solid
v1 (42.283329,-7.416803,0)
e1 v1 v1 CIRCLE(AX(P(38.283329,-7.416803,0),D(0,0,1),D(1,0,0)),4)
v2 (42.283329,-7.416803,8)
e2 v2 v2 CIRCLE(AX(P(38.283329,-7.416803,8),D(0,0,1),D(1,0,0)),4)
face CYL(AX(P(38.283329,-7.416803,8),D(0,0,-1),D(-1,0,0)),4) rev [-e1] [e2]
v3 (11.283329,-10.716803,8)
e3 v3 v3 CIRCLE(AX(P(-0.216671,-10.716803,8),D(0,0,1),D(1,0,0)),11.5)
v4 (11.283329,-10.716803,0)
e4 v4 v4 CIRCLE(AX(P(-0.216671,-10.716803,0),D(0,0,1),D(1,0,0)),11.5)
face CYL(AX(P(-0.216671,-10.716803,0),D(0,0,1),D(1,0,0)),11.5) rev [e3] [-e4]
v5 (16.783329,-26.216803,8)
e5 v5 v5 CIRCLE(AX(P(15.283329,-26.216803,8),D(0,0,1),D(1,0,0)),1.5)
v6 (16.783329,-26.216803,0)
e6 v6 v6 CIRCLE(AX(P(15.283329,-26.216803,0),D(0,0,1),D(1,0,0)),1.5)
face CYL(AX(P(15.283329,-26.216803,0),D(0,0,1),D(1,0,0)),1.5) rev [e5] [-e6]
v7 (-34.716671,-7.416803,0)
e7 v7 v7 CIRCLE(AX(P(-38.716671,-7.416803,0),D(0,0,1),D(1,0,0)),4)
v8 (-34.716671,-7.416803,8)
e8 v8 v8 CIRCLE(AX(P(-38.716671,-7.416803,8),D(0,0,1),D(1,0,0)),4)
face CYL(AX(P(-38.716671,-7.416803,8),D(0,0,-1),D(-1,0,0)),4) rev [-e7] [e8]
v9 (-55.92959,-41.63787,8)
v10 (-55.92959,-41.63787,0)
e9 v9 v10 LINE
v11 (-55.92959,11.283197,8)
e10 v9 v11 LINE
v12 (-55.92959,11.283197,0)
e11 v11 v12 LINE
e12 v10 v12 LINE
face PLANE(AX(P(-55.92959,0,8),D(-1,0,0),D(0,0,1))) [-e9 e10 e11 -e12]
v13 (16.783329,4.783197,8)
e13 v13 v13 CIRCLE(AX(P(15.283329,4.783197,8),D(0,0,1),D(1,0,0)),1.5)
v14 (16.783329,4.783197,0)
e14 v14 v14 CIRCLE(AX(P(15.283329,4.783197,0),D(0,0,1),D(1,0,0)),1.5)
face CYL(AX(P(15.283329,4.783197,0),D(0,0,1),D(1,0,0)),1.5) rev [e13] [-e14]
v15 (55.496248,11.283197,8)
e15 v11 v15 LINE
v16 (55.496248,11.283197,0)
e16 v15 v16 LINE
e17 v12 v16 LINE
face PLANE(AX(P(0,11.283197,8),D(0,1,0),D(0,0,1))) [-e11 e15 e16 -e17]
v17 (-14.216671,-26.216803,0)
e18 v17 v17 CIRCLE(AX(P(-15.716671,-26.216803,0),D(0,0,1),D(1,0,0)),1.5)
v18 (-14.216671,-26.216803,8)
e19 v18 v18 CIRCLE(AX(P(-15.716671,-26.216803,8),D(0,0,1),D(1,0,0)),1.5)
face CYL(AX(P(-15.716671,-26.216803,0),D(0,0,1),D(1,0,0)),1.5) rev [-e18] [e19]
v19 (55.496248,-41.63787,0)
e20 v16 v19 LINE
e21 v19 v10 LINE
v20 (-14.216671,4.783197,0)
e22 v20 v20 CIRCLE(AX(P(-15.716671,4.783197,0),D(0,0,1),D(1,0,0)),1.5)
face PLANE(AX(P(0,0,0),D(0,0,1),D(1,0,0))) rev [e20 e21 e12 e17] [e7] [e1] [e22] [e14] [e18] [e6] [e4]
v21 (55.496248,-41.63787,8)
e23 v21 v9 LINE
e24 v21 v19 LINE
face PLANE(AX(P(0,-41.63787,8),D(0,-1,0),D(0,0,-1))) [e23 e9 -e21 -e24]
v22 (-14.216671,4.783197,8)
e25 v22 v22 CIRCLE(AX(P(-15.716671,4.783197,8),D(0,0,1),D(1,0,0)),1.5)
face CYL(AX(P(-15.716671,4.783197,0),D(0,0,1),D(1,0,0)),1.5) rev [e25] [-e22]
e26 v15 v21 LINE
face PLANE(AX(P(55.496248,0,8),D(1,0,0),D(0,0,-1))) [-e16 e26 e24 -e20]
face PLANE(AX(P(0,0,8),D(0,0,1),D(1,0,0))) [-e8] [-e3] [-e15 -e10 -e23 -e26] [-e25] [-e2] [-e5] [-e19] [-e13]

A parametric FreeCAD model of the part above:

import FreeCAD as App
import Part
import Sketcher
from FreeCAD import Vector

doc = App.newDocument("Part")
body = doc.addObject("PartDesign::Body", "Body")

# Sketch on XY plane
sketch1 = doc.addObject("Sketcher::SketchObject", "Sketch")
body.addObject(sketch1)
sketch1.AttachmentSupport = (doc.XY_Plane, [""])
sketch1.MapMode = "FlatFace"
sketch1.addGeometry([
    Part.LineSegment(Vector(55.5, 11.3, 0), Vector(-55.9, 11.3, 0)),  # 0
    Part.LineSegment(Vector(-55.9, 11.3, 0), Vector(-55.9, -41.6, 0)),  # 1
    Part.LineSegment(Vector(-55.9, -41.6, 0), Vector(55.5, -41.6, 0)),  # 2
    Part.LineSegment(Vector(55.5, -41.6, 0), Vector(55.5, 11.3, 0)),  # 3
    Part.Circle(Vector(-0.2, -10.7, 0), Vector(0, 0, 1), 5),  # 4
    Part.Circle(Vector(38.3, -7.4, 0), Vector(0, 0, 1), 4),  # 5
    Part.Circle(Vector(-38.7, -7.4, 0), Vector(0, 0, 1), 4),  # 6
], False)
sketch1.addConstraint([
    Sketcher.Constraint("Coincident", 0, 2, 1, 1),
    Sketcher.Constraint("Coincident", 1, 2, 2, 1),
    Sketcher.Constraint("Coincident", 2, 2, 3, 1),
    Sketcher.Constraint("Coincident", 3, 2, 0, 1),
    Sketcher.Constraint("Horizontal", 0),
    Sketcher.Constraint("Vertical", 1),
    Sketcher.Constraint("Horizontal", 2),
    Sketcher.Constraint("Vertical", 3),
    Sketcher.Constraint("Equal", 5, 6),
    Sketcher.Constraint("Horizontal", 5, 3, 6, 3),
    Sketcher.Constraint("Diameter", 4, 10.0),
    Sketcher.Constraint("Diameter", 5, 8.0),
    Sketcher.Constraint("DistanceX", 6, 3, 5, 3, 77.0),
    Sketcher.Constraint("DistanceY", 4, 3, 0, 2, 22.0),
    Sketcher.Constraint("DistanceX", 4, 3, 5, 3, 38.5),
    Sketcher.Constraint("DistanceY", 4, 3, 5, 3, 3.3),
    Sketcher.Constraint("DistanceX", 0, 2, 0, 1, 111.425838),
    Sketcher.Constraint("DistanceY", 1, 2, 1, 1, 52.921067),
    Sketcher.Constraint("DistanceX", 4, 3, -1, 1, 0.216671),
    Sketcher.Constraint("DistanceX", 0, 2, -1, 1, 55.92959),
    Sketcher.Constraint("DistanceY", 1, 2, -1, 1, 41.63787),
])
pad1 = doc.addObject("PartDesign::Pad", "Pad")
body.addObject(pad1)
pad1.Profile = sketch1
pad1.Length = 8

# Sketch on XY plane
sketch2 = doc.addObject("Sketcher::SketchObject", "Sketch001")
body.addObject(sketch2)
sketch2.AttachmentSupport = (doc.XY_Plane, [""])
sketch2.MapMode = "FlatFace"
sketch2.AttachmentOffset = App.Placement(Vector(0, 0, 8), App.Rotation())
sketch2.addGeometry([
    Part.Circle(Vector(-0.2, -10.7, 0), Vector(0, 0, 1), 11.5),  # 0
    Part.Circle(Vector(-15.7, -26.2, 0), Vector(0, 0, 1), 1.5),  # 1
    Part.Circle(Vector(15.3, -26.2, 0), Vector(0, 0, 1), 1.5),  # 2
    Part.Circle(Vector(-15.7, 4.8, 0), Vector(0, 0, 1), 1.5),  # 3
    Part.Circle(Vector(15.3, 4.8, 0), Vector(0, 0, 1), 1.5),  # 4
], False)
sketch2.addConstraint([
    Sketcher.Constraint("Equal", 1, 2),
    Sketcher.Constraint("Equal", 2, 3),
    Sketcher.Constraint("Equal", 3, 4),
    Sketcher.Constraint("Horizontal", 1, 3, 2, 3),
    Sketcher.Constraint("Horizontal", 3, 3, 4, 3),
    Sketcher.Constraint("Vertical", 1, 3, 3, 3),
    Sketcher.Constraint("Vertical", 2, 3, 4, 3),
    Sketcher.Constraint("Diameter", 0, 23.0),
    Sketcher.Constraint("Diameter", 1, 3.0),
    Sketcher.Constraint("DistanceX", 1, 3, 2, 3, 31.0),
    Sketcher.Constraint("DistanceY", 1, 3, 3, 3, 31.0),
    Sketcher.Constraint("DistanceX", 1, 3, 0, 3, 15.5),
    Sketcher.Constraint("DistanceY", 1, 3, 0, 3, 15.5),
    Sketcher.Constraint("DistanceX", 0, 3, -1, 1, 0.216671),
    Sketcher.Constraint("DistanceY", 0, 3, -1, 1, 10.716803),
])
pocket1 = doc.addObject("PartDesign::Pocket", "Pocket")
body.addObject(pocket1)
pocket1.Profile = sketch2
pocket1.Type = "ThroughAll"

doc.recompute()
